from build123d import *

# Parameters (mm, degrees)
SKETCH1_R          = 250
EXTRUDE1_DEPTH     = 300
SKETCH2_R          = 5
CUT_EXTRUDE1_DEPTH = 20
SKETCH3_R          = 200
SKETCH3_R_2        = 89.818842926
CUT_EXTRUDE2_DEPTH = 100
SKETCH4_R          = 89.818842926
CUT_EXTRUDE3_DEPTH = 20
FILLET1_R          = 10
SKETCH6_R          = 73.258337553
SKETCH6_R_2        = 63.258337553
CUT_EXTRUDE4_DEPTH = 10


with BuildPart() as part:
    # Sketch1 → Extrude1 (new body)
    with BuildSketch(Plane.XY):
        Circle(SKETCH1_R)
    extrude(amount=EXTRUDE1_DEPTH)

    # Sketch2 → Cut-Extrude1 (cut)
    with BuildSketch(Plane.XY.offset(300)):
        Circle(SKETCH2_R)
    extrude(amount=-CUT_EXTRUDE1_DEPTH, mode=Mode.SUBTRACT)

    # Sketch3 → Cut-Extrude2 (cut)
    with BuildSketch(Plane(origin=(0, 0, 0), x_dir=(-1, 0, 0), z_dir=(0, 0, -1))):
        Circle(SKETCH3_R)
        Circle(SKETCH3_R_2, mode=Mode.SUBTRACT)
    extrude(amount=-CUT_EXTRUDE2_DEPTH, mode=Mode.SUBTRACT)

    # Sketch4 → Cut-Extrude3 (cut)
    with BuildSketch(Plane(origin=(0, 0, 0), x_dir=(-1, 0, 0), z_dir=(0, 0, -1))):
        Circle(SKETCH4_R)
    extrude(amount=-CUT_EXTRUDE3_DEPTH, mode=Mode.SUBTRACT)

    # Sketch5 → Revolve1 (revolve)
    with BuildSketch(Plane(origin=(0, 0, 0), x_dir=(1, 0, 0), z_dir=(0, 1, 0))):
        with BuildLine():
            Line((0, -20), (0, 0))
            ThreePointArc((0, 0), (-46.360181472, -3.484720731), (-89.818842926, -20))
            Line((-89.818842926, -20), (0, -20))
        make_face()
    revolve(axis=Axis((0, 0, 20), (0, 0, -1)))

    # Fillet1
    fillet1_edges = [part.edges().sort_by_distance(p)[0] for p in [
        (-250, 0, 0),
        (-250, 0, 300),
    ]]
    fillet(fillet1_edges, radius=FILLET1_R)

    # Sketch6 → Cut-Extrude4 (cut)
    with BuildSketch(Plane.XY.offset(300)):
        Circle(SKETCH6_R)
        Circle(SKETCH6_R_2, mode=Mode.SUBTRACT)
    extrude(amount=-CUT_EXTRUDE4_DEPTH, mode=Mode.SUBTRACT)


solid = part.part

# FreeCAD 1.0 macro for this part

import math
import FreeCAD as App
import Part
import Sketcher
from FreeCAD import Vector
Q = App.Units.Quantity


def edges_at(feature, points):
    """Names of the edges that pass closest to the given points."""
    edges = feature.Shape.Edges
    near = lambda p: min(range(len(edges)), key=lambda i: edges[i].distToShape(Part.Vertex(*p))[0])
    return sorted({f"Edge{near(p) + 1}" for p in points})

doc = App.newDocument("Part")
params = doc.addObject("Spreadsheet::Sheet", "Params")
for row, (alias, value) in enumerate([
    ("sketch1_diameter", "500 mm"),
    ("pad1_length", "300 mm"),
    ("sketch2_diameter", "10 mm"),
    ("pocket1_length", "20 mm"),
    ("sketch3_diameter", "400 mm"),
    ("pocket2_length", "100 mm"),
    ("pocket3_length", "20 mm"),
    ("sketch5_height", "20 mm"),
    ("revolution_angle", "360 deg"),
    ("fillet_radius", "10 mm"),
    ("pocket4_length", "10 mm"),
], start=1):
    params.set(f"A{row}", alias)
    params.set(f"B{row}", "=" + value)
    params.setAlias(f"B{row}", alias)

body = doc.addObject("PartDesign::Body", "Body")

sketch1 = body.newObject("Sketcher::SketchObject", "Sketch")
sketch1.AttachmentSupport = (doc.getObject("XY_Plane"), [""])
sketch1.MapMode = "FlatFace"
sketch1.addGeometry(Part.Circle(Vector(0, 0, 0), Vector(0, 0, 1), 250), False)
sketch1.addConstraint(Sketcher.Constraint("Coincident", 0, 3, -1, 1))
sketch1.addConstraint(Sketcher.Constraint("Diameter", 0, Q("500 mm")))
sketch1.setExpression("Constraints[1]", "Params.sketch1_diameter")
pad1 = body.newObject("PartDesign::Pad", "Pad")
pad1.Profile = sketch1
pad1.setExpression("Length", "Params.pad1_length")

sketch2 = body.newObject("Sketcher::SketchObject", "Sketch001")
sketch2.AttachmentSupport = (doc.getObject("XY_Plane"), [""])
sketch2.MapMode = "FlatFace"
sketch2.AttachmentOffset = App.Placement(Vector(0, 0, 300), App.Rotation())
sketch2.addGeometry(Part.Circle(Vector(0, 0, 0), Vector(0, 0, 1), 5), False)
sketch2.addConstraint(Sketcher.Constraint("Coincident", 0, 3, -1, 1))
sketch2.addConstraint(Sketcher.Constraint("Diameter", 0, Q("10 mm")))
sketch2.setExpression("Constraints[1]", "Params.sketch2_diameter")
pocket1 = body.newObject("PartDesign::Pocket", "Pocket")
pocket1.Profile = sketch2
pocket1.setExpression("Length", "Params.pocket1_length")

sketch3 = body.newObject("Sketcher::SketchObject", "Sketch002")
sketch3.AttachmentSupport = (doc.getObject("XY_Plane"), [""])
sketch3.MapMode = "FlatFace"
sketch3.addGeometry(Part.Circle(Vector(0, 0, 0), Vector(0, 0, 1), 200), False)
sketch3.addGeometry(Part.Circle(Vector(0, 0, 0), Vector(0, 0, 1), 90), False)
sketch3.addConstraint(Sketcher.Constraint("Coincident", 0, 3, -1, 1))
sketch3.addConstraint(Sketcher.Constraint("Coincident", 1, 3, -1, 1))
sketch3.addConstraint(Sketcher.Constraint("Diameter", 0, Q("400 mm")))
sketch3.addConstraint(Sketcher.Constraint("Diameter", 1, Q("179.637686 mm")))
sketch3.setExpression("Constraints[2]", "Params.sketch3_diameter")
pocket2 = body.newObject("PartDesign::Pocket", "Pocket001")
pocket2.Profile = sketch3
pocket2.setExpression("Length", "Params.pocket2_length")
pocket2.Reversed = True

sketch4 = body.newObject("Sketcher::SketchObject", "Sketch003")
sketch4.AttachmentSupport = (doc.getObject("XY_Plane"), [""])
sketch4.MapMode = "FlatFace"
sketch4.addGeometry(Part.Circle(Vector(0, 0, 0), Vector(0, 0, 1), 90), False)
sketch4.addConstraint(Sketcher.Constraint("Coincident", 0, 3, -1, 1))
sketch4.addConstraint(Sketcher.Constraint("Diameter", 0, Q("179.637686 mm")))
pocket3 = body.newObject("PartDesign::Pocket", "Pocket002")
pocket3.Profile = sketch4
pocket3.setExpression("Length", "Params.pocket3_length")
pocket3.Reversed = True

sketch5 = body.newObject("Sketcher::SketchObject", "Sketch004")
sketch5.AttachmentSupport = (doc.getObject("XZ_Plane"), [""])
sketch5.MapMode = "FlatFace"
sketch5.addGeometry(Part.LineSegment(Vector(0, 20, 0), Vector(0, 0, 0)), False)
sketch5.addGeometry(Part.ArcOfCircle(Part.Circle(Vector(-11, 162, 0), Vector(0, 0, 1), 162), math.radians(-119), math.radians(-86)), False)
sketch5.addGeometry(Part.LineSegment(Vector(-90, 20, 0), Vector(0, 20, 0)), False)
sketch5.addConstraint(Sketcher.Constraint("Coincident", 0, 2, 1, 2))
sketch5.addConstraint(Sketcher.Constraint("Coincident", 1, 1, 2, 1))
sketch5.addConstraint(Sketcher.Constraint("Coincident", 2, 2, 0, 1))
sketch5.addConstraint(Sketcher.Constraint("Vertical", 0))
sketch5.addConstraint(Sketcher.Constraint("Horizontal", 2))
sketch5.addConstraint(Sketcher.Constraint("Coincident", 0, 2, -1, 1))
sketch5.addConstraint(Sketcher.Constraint("DistanceY", 0, 2, 0, 1, Q("20 mm")))
sketch5.addConstraint(Sketcher.Constraint("Radius", 1, Q("161.907085 mm")))
sketch5.addConstraint(Sketcher.Constraint("DistanceX", 2, 1, 2, 2, Q("89.818843 mm")))
sketch5.setExpression("Constraints[6]", "Params.sketch5_height")
revolution = body.newObject("PartDesign::Revolution", "Revolution")
revolution.Profile = sketch5
revolution.ReferenceAxis = (sketch5, ["V_Axis"])
revolution.setExpression("Angle", "Params.revolution_angle")
doc.recompute()

fillet = body.newObject("PartDesign::Fillet", "Fillet")
fillet.Base = (revolution, edges_at(revolution, [(-250, 0, 0), (-250, 0, 300)]))
fillet.setExpression("Radius", "Params.fillet_radius")

sketch6 = body.newObject("Sketcher::SketchObject", "Sketch005")
sketch6.AttachmentSupport = (doc.getObject("XY_Plane"), [""])
sketch6.MapMode = "FlatFace"
sketch6.AttachmentOffset = App.Placement(Vector(0, 0, 300), App.Rotation())
sketch6.addGeometry(Part.Circle(Vector(0, 0, 0), Vector(0, 0, 1), 73), False)
sketch6.addGeometry(Part.Circle(Vector(0, 0, 0), Vector(0, 0, 1), 63), False)
sketch6.addConstraint(Sketcher.Constraint("Coincident", 0, 3, -1, 1))
sketch6.addConstraint(Sketcher.Constraint("Coincident", 1, 3, -1, 1))
sketch6.addConstraint(Sketcher.Constraint("Diameter", 0, Q("146.516675 mm")))
sketch6.addConstraint(Sketcher.Constraint("Diameter", 1, Q("126.516675 mm")))
pocket4 = body.newObject("PartDesign::Pocket", "Pocket003")
pocket4.Profile = sketch6
pocket4.setExpression("Length", "Params.pocket4_length")

doc.recompute()
